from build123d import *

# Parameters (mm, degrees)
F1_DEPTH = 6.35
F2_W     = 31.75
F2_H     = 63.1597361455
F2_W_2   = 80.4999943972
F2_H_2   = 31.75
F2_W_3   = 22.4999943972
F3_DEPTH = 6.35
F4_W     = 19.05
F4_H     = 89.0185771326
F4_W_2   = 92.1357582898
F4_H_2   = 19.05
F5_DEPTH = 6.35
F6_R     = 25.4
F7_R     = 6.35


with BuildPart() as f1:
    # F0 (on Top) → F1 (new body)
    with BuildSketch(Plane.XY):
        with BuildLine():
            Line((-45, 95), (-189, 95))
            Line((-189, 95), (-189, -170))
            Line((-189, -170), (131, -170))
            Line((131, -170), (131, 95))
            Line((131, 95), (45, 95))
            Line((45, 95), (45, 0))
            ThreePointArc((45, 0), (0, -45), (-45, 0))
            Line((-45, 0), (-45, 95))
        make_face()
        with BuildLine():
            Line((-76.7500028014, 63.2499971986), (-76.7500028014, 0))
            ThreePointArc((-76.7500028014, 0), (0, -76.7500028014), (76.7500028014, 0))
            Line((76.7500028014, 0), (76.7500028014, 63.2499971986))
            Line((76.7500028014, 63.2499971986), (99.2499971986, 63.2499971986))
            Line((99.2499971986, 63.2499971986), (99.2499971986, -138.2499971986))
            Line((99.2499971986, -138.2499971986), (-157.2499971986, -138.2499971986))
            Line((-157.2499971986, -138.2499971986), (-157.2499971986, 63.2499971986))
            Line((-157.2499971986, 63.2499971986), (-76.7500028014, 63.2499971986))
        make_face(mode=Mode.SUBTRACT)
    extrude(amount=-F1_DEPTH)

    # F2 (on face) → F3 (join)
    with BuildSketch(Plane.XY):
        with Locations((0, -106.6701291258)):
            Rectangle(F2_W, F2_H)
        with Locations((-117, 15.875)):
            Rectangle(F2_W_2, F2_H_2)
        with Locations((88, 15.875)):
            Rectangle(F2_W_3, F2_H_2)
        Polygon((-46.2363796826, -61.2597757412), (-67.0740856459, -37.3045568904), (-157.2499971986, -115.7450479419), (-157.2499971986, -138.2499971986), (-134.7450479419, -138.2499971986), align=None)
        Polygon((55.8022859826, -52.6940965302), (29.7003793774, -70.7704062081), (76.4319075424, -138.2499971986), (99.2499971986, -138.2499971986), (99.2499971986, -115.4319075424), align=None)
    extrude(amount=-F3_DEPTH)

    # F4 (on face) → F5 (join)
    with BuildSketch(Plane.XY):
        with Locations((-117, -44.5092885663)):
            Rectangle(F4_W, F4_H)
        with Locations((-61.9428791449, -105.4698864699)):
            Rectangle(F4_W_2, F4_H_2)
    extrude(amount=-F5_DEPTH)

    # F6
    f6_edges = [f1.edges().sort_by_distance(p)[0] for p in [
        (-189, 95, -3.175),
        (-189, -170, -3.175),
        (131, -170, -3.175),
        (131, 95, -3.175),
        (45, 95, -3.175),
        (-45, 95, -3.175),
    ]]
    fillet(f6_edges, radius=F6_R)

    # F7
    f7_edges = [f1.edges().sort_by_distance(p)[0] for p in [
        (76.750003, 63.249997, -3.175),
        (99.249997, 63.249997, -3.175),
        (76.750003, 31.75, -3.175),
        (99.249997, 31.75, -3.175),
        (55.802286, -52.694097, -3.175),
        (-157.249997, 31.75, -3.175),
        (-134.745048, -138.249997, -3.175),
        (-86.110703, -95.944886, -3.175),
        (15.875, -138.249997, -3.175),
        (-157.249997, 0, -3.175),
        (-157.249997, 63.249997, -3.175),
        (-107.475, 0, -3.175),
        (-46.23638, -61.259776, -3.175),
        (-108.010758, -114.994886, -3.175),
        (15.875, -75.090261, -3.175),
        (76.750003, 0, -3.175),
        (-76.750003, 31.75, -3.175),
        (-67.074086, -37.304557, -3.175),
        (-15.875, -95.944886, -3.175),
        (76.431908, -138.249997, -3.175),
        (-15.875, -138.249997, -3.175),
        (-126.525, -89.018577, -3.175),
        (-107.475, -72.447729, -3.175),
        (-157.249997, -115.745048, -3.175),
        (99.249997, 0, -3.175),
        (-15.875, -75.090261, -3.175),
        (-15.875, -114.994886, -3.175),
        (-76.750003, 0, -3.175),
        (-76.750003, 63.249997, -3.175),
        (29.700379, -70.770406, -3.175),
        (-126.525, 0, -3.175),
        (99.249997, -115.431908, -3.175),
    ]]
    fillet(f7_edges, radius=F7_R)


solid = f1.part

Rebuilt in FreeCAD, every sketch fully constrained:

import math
import FreeCAD as App
import Part
import Sketcher

V = App.Vector
Q = App.Units.Quantity


def edges_at(feature, points):
    """Names of the edges that pass closest to the given points."""
    edges = feature.Shape.Edges
    near = lambda p: min(range(len(edges)), key=lambda i: edges[i].distToShape(Part.Vertex(*p))[0])
    return sorted({f"Edge{near(p) + 1}" for p in points})

doc = App.newDocument("Part")
body = doc.addObject("PartDesign::Body", "Body")

# Sketch on XY plane
sketch1 = body.newObject("Sketcher::SketchObject", "Sketch")
sketch1.AttachmentSupport = (doc.getObject("XY_Plane"), [""])
sketch1.MapMode = "FlatFace"
sketch1.addGeometry([
    Part.LineSegment(V(-45, 95, 0), V(-189, 95, 0)),  # 0
    Part.LineSegment(V(-189, 95, 0), V(-189, -170, 0)),  # 1
    Part.LineSegment(V(-189, -170, 0), V(131, -170, 0)),  # 2
    Part.LineSegment(V(131, -170, 0), V(131, 95, 0)),  # 3
    Part.LineSegment(V(131, 95, 0), V(45, 95, 0)),  # 4
    Part.LineSegment(V(45, 95, 0), V(45, 0, 0)),  # 5
    Part.ArcOfCircle(Part.Circle(V(0, 0, 0), V(0, 0, 1), 45), math.radians(180), math.radians(360)),  # 6
    Part.LineSegment(V(-45, 0, 0), V(-45, 95, 0)),  # 7
    Part.LineSegment(V(-157, 63, 0), V(-77, 63, 0)),  # 8
    Part.LineSegment(V(-77, 63, 0), V(-77, 0, 0)),  # 9
    Part.ArcOfCircle(Part.Circle(V(0, 0, 0), V(0, 0, 1), 77), math.radians(180), math.radians(360)),  # 10
    Part.LineSegment(V(77, 0, 0), V(77, 63, 0)),  # 11
    Part.LineSegment(V(77, 63, 0), V(99, 63, 0)),  # 12
    Part.LineSegment(V(99, 63, 0), V(99, -138, 0)),  # 13
    Part.LineSegment(V(99, -138, 0), V(-157, -138, 0)),  # 14
    Part.LineSegment(V(-157, -138, 0), V(-157, 63, 0)),  # 15
], False)
sketch1.addConstraint([
    Sketcher.Constraint("Coincident", 0, 2, 1, 1),
    Sketcher.Constraint("Coincident", 1, 2, 2, 1),
    Sketcher.Constraint("Coincident", 2, 2, 3, 1),
    Sketcher.Constraint("Coincident", 3, 2, 4, 1),
    Sketcher.Constraint("Coincident", 4, 2, 5, 1),
    Sketcher.Constraint("Tangent", 5, 2, 6, 2),
    Sketcher.Constraint("Tangent", 6, 1, 7, 1),
    Sketcher.Constraint("Coincident", 7, 2, 0, 1),
    Sketcher.Constraint("Coincident", 8, 2, 9, 1),
    Sketcher.Constraint("Tangent", 9, 2, 10, 1),
    Sketcher.Constraint("Tangent", 10, 2, 11, 1),
    Sketcher.Constraint("Coincident", 11, 2, 12, 1),
    Sketcher.Constraint("Coincident", 12, 2, 13, 1),
    Sketcher.Constraint("Coincident", 13, 2, 14, 1),
    Sketcher.Constraint("Coincident", 14, 2, 15, 1),
    Sketcher.Constraint("Coincident", 15, 2, 8, 1),
    Sketcher.Constraint("Horizontal", 0),
    Sketcher.Constraint("Vertical", 1),
    Sketcher.Constraint("Horizontal", 2),
    Sketcher.Constraint("Vertical", 3),
    Sketcher.Constraint("Horizontal", 4),
    Sketcher.Constraint("Vertical", 5),
    Sketcher.Constraint("Vertical", 7),
    Sketcher.Constraint("Horizontal", 8),
    Sketcher.Constraint("Vertical", 9),
    Sketcher.Constraint("Vertical", 11),
    Sketcher.Constraint("Horizontal", 12),
    Sketcher.Constraint("Vertical", 13),
    Sketcher.Constraint("Horizontal", 14),
    Sketcher.Constraint("Vertical", 15),
    Sketcher.Constraint("Coincident", 6, 3, -1, 1),
    Sketcher.Constraint("Coincident", 10, 3, -1, 1),
    Sketcher.Constraint("Horizontal", 0, 2, 3, 2),
    Sketcher.Constraint("Horizontal", 8, 2, 11, 2),
    Sketcher.Constraint("Radius", 6, Q("45 mm")),
    Sketcher.Constraint("DistanceX", 0, 2, 0, 1, Q("144 mm")),
    Sketcher.Constraint("DistanceX", 2, 1, 2, 2, Q("320 mm")),
    Sketcher.Constraint("DistanceY", 1, 2, 1, 1, Q("265 mm")),
    Sketcher.Constraint("DistanceY", 5, 2, 5, 1, Q("95 mm")),
    Sketcher.Constraint("Radius", 10, Q("76.750003 mm")),
    Sketcher.Constraint("DistanceX", 8, 1, 8, 2, Q("80.499994 mm")),
    Sketcher.Constraint("DistanceX", 12, 1, 12, 2, Q("22.499994 mm")),
    Sketcher.Constraint("DistanceY", 9, 2, 9, 1, Q("63.249997 mm")),
    Sketcher.Constraint("DistanceY", 13, 2, 13, 1, Q("201.499994 mm")),
])
pad1 = body.newObject("PartDesign::Pad", "Pad")
pad1.Profile = sketch1
pad1.Length = 6.35
pad1.Reversed = True

# Sketch on XY plane
sketch2 = body.newObject("Sketcher::SketchObject", "Sketch001")
sketch2.AttachmentSupport = (doc.getObject("XY_Plane"), [""])
sketch2.MapMode = "FlatFace"
sketch2.addGeometry([
    Part.LineSegment(V(-15.875, -75.090261, 0), V(-15.875, -138.249997, 0)),  # 0
    Part.LineSegment(V(-15.875, -138.249997, 0), V(15.875, -138.249997, 0)),  # 1
    Part.LineSegment(V(15.875, -138.249997, 0), V(15.875, -75.090261, 0)),  # 2
    Part.LineSegment(V(15.875, -75.090261, 0), V(-15.875, -75.090261, 0)),  # 3
    Part.LineSegment(V(-157.249997, 31.75, 0), V(-157.249997, 0, 0)),  # 4
    Part.LineSegment(V(-157.249997, 0, 0), V(-76.750003, 0, 0)),  # 5
    Part.LineSegment(V(-76.750003, 0, 0), V(-76.750003, 31.75, 0)),  # 6
    Part.LineSegment(V(-76.750003, 31.75, 0), V(-157.249997, 31.75, 0)),  # 7
    Part.LineSegment(V(76.750003, 31.75, 0), V(76.750003, 0, 0)),  # 8
    Part.LineSegment(V(76.750003, 0, 0), V(99.249997, 0, 0)),  # 9
    Part.LineSegment(V(99.249997, 0, 0), V(99.249997, 31.75, 0)),  # 10
    Part.LineSegment(V(99.249997, 31.75, 0), V(76.750003, 31.75, 0)),  # 11
    Part.LineSegment(V(-46.23638, -61.259776, 0), V(-67.074086, -37.304557, 0)),  # 12
    Part.LineSegment(V(-67.074086, -37.304557, 0), V(-157.249997, -115.745048, 0)),  # 13
    Part.LineSegment(V(-157.249997, -115.745048, 0), V(-157.249997, -138.249997, 0)),  # 14
    Part.LineSegment(V(-157.249997, -138.249997, 0), V(-134.745048, -138.249997, 0)),  # 15
    Part.LineSegment(V(-134.745048, -138.249997, 0), V(-46.23638, -61.259776, 0)),  # 16
    Part.LineSegment(V(55.802286, -52.694097, 0), V(29.700379, -70.770406, 0)),  # 17
    Part.LineSegment(V(29.700379, -70.770406, 0), V(76.431908, -138.249997, 0)),  # 18
    Part.LineSegment(V(76.431908, -138.249997, 0), V(99.249997, -138.249997, 0)),  # 19
    Part.LineSegment(V(99.249997, -138.249997, 0), V(99.249997, -115.431908, 0)),  # 20
    Part.LineSegment(V(99.249997, -115.431908, 0), V(55.802286, -52.694097, 0)),  # 21
], False)
sketch2.addConstraint([
    Sketcher.Constraint("Coincident", 0, 2, 1, 1),
    Sketcher.Constraint("Coincident", 1, 2, 2, 1),
    Sketcher.Constraint("Coincident", 2, 2, 3, 1),
    Sketcher.Constraint("Coincident", 3, 2, 0, 1),
    Sketcher.Constraint("Coincident", 4, 2, 5, 1),
    Sketcher.Constraint("Coincident", 5, 2, 6, 1),
    Sketcher.Constraint("Coincident", 6, 2, 7, 1),
    Sketcher.Constraint("Coincident", 7, 2, 4, 1),
    Sketcher.Constraint("Coincident", 8, 2, 9, 1),
    Sketcher.Constraint("Coincident", 9, 2, 10, 1),
    Sketcher.Constraint("Coincident", 10, 2, 11, 1),
    Sketcher.Constraint("Coincident", 11, 2, 8, 1),
    Sketcher.Constraint("Coincident", 12, 2, 13, 1),
    Sketcher.Constraint("Coincident", 13, 2, 14, 1),
    Sketcher.Constraint("Coincident", 14, 2, 15, 1),
    Sketcher.Constraint("Coincident", 15, 2, 16, 1),
    Sketcher.Constraint("Coincident", 16, 2, 12, 1),
    Sketcher.Constraint("Coincident", 17, 2, 18, 1),
    Sketcher.Constraint("Coincident", 18, 2, 19, 1),
    Sketcher.Constraint("Coincident", 19, 2, 20, 1),
    Sketcher.Constraint("Coincident", 20, 2, 21, 1),
    Sketcher.Constraint("Coincident", 21, 2, 17, 1),
    Sketcher.Constraint("Vertical", 0),
    Sketcher.Constraint("Horizontal", 1),
    Sketcher.Constraint("Vertical", 2),
    Sketcher.Constraint("Horizontal", 3),
    Sketcher.Constraint("Vertical", 4),
    Sketcher.Constraint("Horizontal", 5),
    Sketcher.Constraint("Vertical", 6),
    Sketcher.Constraint("Horizontal", 7),
    Sketcher.Constraint("Vertical", 8),
    Sketcher.Constraint("Horizontal", 9),
    Sketcher.Constraint("Vertical", 10),
    Sketcher.Constraint("Horizontal", 11),
    Sketcher.Constraint("Vertical", 14),
    Sketcher.Constraint("Horizontal", 15),
    Sketcher.Constraint("Horizontal", 19),
    Sketcher.Constraint("Vertical", 20),
    Sketcher.Constraint("PointOnObject", 4, 2, -1),
    Sketcher.Constraint("PointOnObject", 8, 2, -1),
    Sketcher.Constraint("DistanceX", 5, 2, 9, 2, Q("176 mm")),
    Sketcher.Constraint("DistanceX", 1, 1, 1, 2, Q("31.75 mm")),
    Sketcher.Constraint("DistanceY", 4, 2, 4, 1, Q("31.75 mm")),
    Sketcher.Constraint("DistanceY", 8, 2, 8, 1, Q("31.75 mm")),
    Sketcher.Constraint("Distance", 12, Q("31.75 mm")),
    Sketcher.Constraint("Distance", 17, Q("31.75 mm")),
    Sketcher.Constraint("DistanceX", 0, 2, -1, 1, Q("15.875 mm")),
    Sketcher.Constraint("DistanceX", 15, 1, 15, 2, Q("22.504949 mm")),
    Sketcher.Constraint("DistanceX", 19, 1, 19, 2, Q("22.81809 mm")),
    Sketcher.Constraint("DistanceY", 14, 2, 14, 1, Q("22.504949 mm")),
    Sketcher.Constraint("DistanceY", 20, 1, 20, 2, Q("22.81809 mm")),
    Sketcher.Constraint("DistanceY", 20, 2, 17, 2, Q("44.661501 mm")),
    Sketcher.Constraint("Distance", 21, Q("76.31341 mm")),
    Sketcher.Constraint("DistanceX", 5, 1, 5, 2, Q("80.499994 mm")),
    Sketcher.Constraint("DistanceX", 9, 1, 9, 2, Q("22.499994 mm")),
    Sketcher.Constraint("DistanceY", 0, 2, 0, 1, Q("63.159736 mm")),
    Sketcher.Constraint("DistanceY", 2, 2, -1, 1, Q("75.090261 mm")),
    Sketcher.Constraint("DistanceX", 16, 2, -1, 1, Q("46.23638 mm")),
    Sketcher.Constraint("DistanceX", -1, 1, 17, 2, Q("29.700379 mm")),
    Sketcher.Constraint("DistanceX", 4, 2, 12, 2, Q("90.175912 mm")),
    Sketcher.Constraint("DistanceX", 13, 2, 12, 2, Q("90.175912 mm")),
    Sketcher.Constraint("DistanceY", 13, 2, 12, 2, Q("78.440491 mm")),
    Sketcher.Constraint("DistanceY", 0, 2, 13, 2, Q("22.504949 mm")),
    Sketcher.Constraint("DistanceY", 16, 2, 12, 2, Q("23.955219 mm")),
    Sketcher.Constraint("DistanceY", 1, 2, 17, 2, Q("67.479591 mm")),
    Sketcher.Constraint("DistanceX", 17, 2, 18, 2, Q("46.731528 mm")),
])
pad2 = body.newObject("PartDesign::Pad", "Pad001")
pad2.Profile = sketch2
pad2.Length = 6.35
pad2.Reversed = True

# Sketch on XY plane
sketch3 = body.newObject("Sketcher::SketchObject", "Sketch002")
sketch3.AttachmentSupport = (doc.getObject("XY_Plane"), [""])
sketch3.MapMode = "FlatFace"
sketch3.addGeometry([
    Part.LineSegment(V(-127, 0, 0), V(-127, -89, 0)),  # 0
    Part.LineSegment(V(-127, -89, 0), V(-107, -89, 0)),  # 1
    Part.LineSegment(V(-107, -89, 0), V(-107, 0, 0)),  # 2
    Part.LineSegment(V(-107, 0, 0), V(-127, 0, 0)),  # 3
    Part.LineSegment(V(-108, -96, 0), V(-108, -115, 0)),  # 4
    Part.LineSegment(V(-108, -115, 0), V(-16, -115, 0)),  # 5
    Part.LineSegment(V(-16, -115, 0), V(-16, -96, 0)),  # 6
    Part.LineSegment(V(-16, -96, 0), V(-108, -96, 0)),  # 7
], False)
sketch3.addConstraint([
    Sketcher.Constraint("Coincident", 0, 2, 1, 1),
    Sketcher.Constraint("Coincident", 1, 2, 2, 1),
    Sketcher.Constraint("Coincident", 2, 2, 3, 1),
    Sketcher.Constraint("Coincident", 3, 2, 0, 1),
    Sketcher.Constraint("Coincident", 4, 2, 5, 1),
    Sketcher.Constraint("Coincident", 5, 2, 6, 1),
    Sketcher.Constraint("Coincident", 6, 2, 7, 1),
    Sketcher.Constraint("Coincident", 7, 2, 4, 1),
    Sketcher.Constraint("Vertical", 0),
    Sketcher.Constraint("Horizontal", 1),
    Sketcher.Constraint("Vertical", 2),
    Sketcher.Constraint("Horizontal", 3),
    Sketcher.Constraint("Vertical", 4),
    Sketcher.Constraint("Horizontal", 5),
    Sketcher.Constraint("Vertical", 6),
    Sketcher.Constraint("Horizontal", 7),
    Sketcher.Constraint("PointOnObject", 2, 2, -1),
    Sketcher.Constraint("Equal", 3, 4),
    Sketcher.Constraint("DistanceX", 1, 1, 1, 2, Q("19.05 mm")),
    Sketcher.Constraint("DistanceX", 1, 2, 5, 2, Q("91.6 mm")),
    Sketcher.Constraint("DistanceX", 0, 2, -1, 1, Q("126.525 mm")),
    Sketcher.Constraint("DistanceX", 5, 1, 5, 2, Q("92.135758 mm")),
    Sketcher.Constraint("DistanceY", 0, 2, 0, 1, Q("89.018577 mm")),
    Sketcher.Constraint("DistanceY", 4, 2, 1, 2, Q("25.976309 mm")),
])
pad3 = body.newObject("PartDesign::Pad", "Pad002")
pad3.Profile = sketch3
pad3.Length = 6.35
pad3.Reversed = True
doc.recompute()

fillet = body.newObject("PartDesign::Fillet", "Fillet")
fillet.Base = (pad3, edges_at(pad3, [
    (-189, 95, -3.175),
    (-189, -170, -3.175),
    (131, -170, -3.175),
    (131, 95, -3.175),
    (45, 95, -3.175),
    (-45, 95, -3.175),
]))
fillet.Radius = 25.4
doc.recompute()

fillet2 = body.newObject("PartDesign::Fillet", "Fillet001")
fillet2.Base = (fillet, edges_at(fillet, [
    (76.75, 63.25, -3.175),
    (99.25, 63.25, -3.175),
    (76.75, 31.75, -3.175),
    (99.25, 31.75, -3.175),
    (55.802, -52.694, -3.175),
    (-157.25, 31.75, -3.175),
    (-134.745, -138.25, -3.175),
    (-86.111, -95.945, -3.175),
    (15.875, -138.25, -3.175),
    (-157.25, 0, -3.175),
    (-157.25, 63.25, -3.175),
    (-107.475, 0, -3.175),
    (-46.236, -61.26, -3.175),
    (-108.011, -114.995, -3.175),
    (15.875, -75.09, -3.175),
    (76.75, 0, -3.175),
    (-76.75, 31.75, -3.175),
    (-67.074, -37.305, -3.175),
    (-15.875, -95.945, -3.175),
    (76.432, -138.25, -3.175),
    (-15.875, -138.25, -3.175),
    (-126.525, -89.019, -3.175),
    (-107.475, -72.448, -3.175),
    (-157.25, -115.745, -3.175),
    (99.25, 0, -3.175),
    (-15.875, -75.09, -3.175),
    (-15.875, -114.995, -3.175),
    (-76.75, 0, -3.175),
    (-76.75, 63.25, -3.175),
    (29.7, -70.77, -3.175),
    (-126.525, 0, -3.175),
    (99.25, -115.432, -3.175),
]))
fillet2.Radius = 6.35

doc.recompute()
